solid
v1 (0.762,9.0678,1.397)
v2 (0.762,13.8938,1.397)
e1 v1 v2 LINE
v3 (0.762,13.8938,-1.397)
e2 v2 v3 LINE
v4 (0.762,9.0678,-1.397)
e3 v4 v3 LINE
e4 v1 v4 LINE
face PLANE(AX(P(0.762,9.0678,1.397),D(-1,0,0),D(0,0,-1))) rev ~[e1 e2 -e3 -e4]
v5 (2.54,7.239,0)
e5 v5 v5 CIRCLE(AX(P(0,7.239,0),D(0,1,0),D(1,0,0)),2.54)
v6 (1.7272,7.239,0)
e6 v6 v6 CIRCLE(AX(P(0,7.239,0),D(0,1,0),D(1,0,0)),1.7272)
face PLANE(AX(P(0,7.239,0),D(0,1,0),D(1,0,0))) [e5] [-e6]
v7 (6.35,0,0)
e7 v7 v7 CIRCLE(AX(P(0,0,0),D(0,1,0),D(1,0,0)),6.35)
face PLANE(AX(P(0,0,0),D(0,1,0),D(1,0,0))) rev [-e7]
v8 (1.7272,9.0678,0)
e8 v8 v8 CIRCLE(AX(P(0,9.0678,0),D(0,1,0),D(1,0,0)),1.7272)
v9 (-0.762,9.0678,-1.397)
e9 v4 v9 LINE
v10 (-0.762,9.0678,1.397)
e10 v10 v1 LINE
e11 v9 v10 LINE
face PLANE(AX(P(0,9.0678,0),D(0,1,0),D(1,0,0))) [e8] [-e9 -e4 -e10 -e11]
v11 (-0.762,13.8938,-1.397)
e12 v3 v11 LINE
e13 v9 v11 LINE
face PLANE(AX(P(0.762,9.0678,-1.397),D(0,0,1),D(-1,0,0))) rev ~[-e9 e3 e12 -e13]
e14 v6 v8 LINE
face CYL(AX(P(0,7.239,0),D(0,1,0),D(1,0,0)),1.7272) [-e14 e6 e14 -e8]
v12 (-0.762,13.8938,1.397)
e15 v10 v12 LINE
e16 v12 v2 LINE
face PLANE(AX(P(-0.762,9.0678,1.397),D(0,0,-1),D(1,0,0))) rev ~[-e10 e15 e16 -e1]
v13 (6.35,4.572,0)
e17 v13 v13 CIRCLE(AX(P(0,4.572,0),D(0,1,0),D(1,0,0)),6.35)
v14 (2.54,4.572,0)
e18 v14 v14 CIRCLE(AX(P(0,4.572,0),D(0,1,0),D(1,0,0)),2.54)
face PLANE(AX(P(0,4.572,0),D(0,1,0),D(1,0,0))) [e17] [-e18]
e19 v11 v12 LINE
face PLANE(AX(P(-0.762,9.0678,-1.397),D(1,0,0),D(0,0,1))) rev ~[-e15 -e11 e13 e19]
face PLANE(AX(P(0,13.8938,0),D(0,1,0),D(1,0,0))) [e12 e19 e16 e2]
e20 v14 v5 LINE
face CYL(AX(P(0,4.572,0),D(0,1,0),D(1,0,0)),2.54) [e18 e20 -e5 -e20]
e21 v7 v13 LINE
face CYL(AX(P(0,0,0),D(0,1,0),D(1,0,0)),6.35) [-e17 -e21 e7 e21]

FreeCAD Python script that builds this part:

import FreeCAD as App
import Part
import Sketcher
Q = App.Units.Quantity


def add_polygon(sketch, points):
    """Adds a closed chain of lines whose ends are joined by coincident constraints."""
    first, n = sketch.GeometryCount, len(points)
    for a, b in zip(points, points[1:] + points[:1]):
        sketch.addGeometry(Part.LineSegment(App.Vector(*a, 0), App.Vector(*b, 0)), False)
    for i in range(n):
        sketch.addConstraint(Sketcher.Constraint("Coincident", first + i, 2, first + (i + 1) % n, 1))

doc = App.newDocument("Part")
body = doc.addObject("PartDesign::Body", "Body")

sketch1 = doc.addObject("Sketcher::SketchObject", "Sketch")
body.addObject(sketch1)
sketch1.AttachmentSupport = (doc.XY_Plane, [""])
sketch1.MapMode = "FlatFace"
add_polygon(sketch1, [(0, 9.0678), (0, 0), (6.35, 0), (6.35, 4.572), (2.54, 4.572), (2.54, 7.239), (1.7272, 7.239), (1.7272, 9.0678)])
sketch1.addConstraint([
    Sketcher.Constraint("Vertical", 0),
    Sketcher.Constraint("Horizontal", 1),
    Sketcher.Constraint("Vertical", 2),
    Sketcher.Constraint("Horizontal", 3),
    Sketcher.Constraint("Vertical", 4),
    Sketcher.Constraint("Horizontal", 5),
    Sketcher.Constraint("Vertical", 6),
    Sketcher.Constraint("Horizontal", 7),
    Sketcher.Constraint("Coincident", 0, 2, -1, 1),
    Sketcher.Constraint("DistanceX", 1, 1, 1, 2, Q("0.25 in")),
    Sketcher.Constraint("DistanceX", 3, 2, 3, 1, Q("0.15 in")),
    Sketcher.Constraint("DistanceY", 2, 1, 2, 2, Q("0.18 in")),
    Sketcher.Constraint("DistanceX", 7, 2, 7, 1, Q("0.068 in")),
    Sketcher.Constraint("DistanceY", 4, 1, 4, 2, Q("0.105 in")),
    Sketcher.Constraint("DistanceY", 6, 1, 6, 2, Q("0.072 in")),
])
revolution = doc.addObject("PartDesign::Revolution", "Revolution")
body.addObject(revolution)
revolution.Profile = sketch1
revolution.ReferenceAxis = (sketch1, ["V_Axis"])
revolution.Angle = 360

sketch2 = doc.addObject("Sketcher::SketchObject", "Sketch001")
body.addObject(sketch2)
sketch2.AttachmentSupport = (doc.XZ_Plane, [""])
sketch2.MapMode = "FlatFace"
sketch2.AttachmentOffset = App.Placement(App.Vector(0, 0, -0.357 * 25.4), App.Rotation())
add_polygon(sketch2, [(-0.762, -1.397), (-0.762, 1.397), (0.762, 1.397), (0.762, -1.397)])
sketch2.addConstraint([
    Sketcher.Constraint("Vertical", 0),
    Sketcher.Constraint("Horizontal", 1),
    Sketcher.Constraint("Vertical", 2),
    Sketcher.Constraint("Horizontal", 3),
    Sketcher.Constraint("Symmetric", 0, 2, 2, 2, -1, 1),
    Sketcher.Constraint("DistanceX", 1, 1, 1, 2, Q("0.06 in")),
    Sketcher.Constraint("DistanceY", 0, 1, 0, 2, Q("0.11 in")),
])
pad1 = doc.addObject("PartDesign::Pad", "Pad")
body.addObject(pad1)
pad1.Profile = sketch2
pad1.Length = Q("0.19 in")
pad1.Reversed = True

doc.recompute()
